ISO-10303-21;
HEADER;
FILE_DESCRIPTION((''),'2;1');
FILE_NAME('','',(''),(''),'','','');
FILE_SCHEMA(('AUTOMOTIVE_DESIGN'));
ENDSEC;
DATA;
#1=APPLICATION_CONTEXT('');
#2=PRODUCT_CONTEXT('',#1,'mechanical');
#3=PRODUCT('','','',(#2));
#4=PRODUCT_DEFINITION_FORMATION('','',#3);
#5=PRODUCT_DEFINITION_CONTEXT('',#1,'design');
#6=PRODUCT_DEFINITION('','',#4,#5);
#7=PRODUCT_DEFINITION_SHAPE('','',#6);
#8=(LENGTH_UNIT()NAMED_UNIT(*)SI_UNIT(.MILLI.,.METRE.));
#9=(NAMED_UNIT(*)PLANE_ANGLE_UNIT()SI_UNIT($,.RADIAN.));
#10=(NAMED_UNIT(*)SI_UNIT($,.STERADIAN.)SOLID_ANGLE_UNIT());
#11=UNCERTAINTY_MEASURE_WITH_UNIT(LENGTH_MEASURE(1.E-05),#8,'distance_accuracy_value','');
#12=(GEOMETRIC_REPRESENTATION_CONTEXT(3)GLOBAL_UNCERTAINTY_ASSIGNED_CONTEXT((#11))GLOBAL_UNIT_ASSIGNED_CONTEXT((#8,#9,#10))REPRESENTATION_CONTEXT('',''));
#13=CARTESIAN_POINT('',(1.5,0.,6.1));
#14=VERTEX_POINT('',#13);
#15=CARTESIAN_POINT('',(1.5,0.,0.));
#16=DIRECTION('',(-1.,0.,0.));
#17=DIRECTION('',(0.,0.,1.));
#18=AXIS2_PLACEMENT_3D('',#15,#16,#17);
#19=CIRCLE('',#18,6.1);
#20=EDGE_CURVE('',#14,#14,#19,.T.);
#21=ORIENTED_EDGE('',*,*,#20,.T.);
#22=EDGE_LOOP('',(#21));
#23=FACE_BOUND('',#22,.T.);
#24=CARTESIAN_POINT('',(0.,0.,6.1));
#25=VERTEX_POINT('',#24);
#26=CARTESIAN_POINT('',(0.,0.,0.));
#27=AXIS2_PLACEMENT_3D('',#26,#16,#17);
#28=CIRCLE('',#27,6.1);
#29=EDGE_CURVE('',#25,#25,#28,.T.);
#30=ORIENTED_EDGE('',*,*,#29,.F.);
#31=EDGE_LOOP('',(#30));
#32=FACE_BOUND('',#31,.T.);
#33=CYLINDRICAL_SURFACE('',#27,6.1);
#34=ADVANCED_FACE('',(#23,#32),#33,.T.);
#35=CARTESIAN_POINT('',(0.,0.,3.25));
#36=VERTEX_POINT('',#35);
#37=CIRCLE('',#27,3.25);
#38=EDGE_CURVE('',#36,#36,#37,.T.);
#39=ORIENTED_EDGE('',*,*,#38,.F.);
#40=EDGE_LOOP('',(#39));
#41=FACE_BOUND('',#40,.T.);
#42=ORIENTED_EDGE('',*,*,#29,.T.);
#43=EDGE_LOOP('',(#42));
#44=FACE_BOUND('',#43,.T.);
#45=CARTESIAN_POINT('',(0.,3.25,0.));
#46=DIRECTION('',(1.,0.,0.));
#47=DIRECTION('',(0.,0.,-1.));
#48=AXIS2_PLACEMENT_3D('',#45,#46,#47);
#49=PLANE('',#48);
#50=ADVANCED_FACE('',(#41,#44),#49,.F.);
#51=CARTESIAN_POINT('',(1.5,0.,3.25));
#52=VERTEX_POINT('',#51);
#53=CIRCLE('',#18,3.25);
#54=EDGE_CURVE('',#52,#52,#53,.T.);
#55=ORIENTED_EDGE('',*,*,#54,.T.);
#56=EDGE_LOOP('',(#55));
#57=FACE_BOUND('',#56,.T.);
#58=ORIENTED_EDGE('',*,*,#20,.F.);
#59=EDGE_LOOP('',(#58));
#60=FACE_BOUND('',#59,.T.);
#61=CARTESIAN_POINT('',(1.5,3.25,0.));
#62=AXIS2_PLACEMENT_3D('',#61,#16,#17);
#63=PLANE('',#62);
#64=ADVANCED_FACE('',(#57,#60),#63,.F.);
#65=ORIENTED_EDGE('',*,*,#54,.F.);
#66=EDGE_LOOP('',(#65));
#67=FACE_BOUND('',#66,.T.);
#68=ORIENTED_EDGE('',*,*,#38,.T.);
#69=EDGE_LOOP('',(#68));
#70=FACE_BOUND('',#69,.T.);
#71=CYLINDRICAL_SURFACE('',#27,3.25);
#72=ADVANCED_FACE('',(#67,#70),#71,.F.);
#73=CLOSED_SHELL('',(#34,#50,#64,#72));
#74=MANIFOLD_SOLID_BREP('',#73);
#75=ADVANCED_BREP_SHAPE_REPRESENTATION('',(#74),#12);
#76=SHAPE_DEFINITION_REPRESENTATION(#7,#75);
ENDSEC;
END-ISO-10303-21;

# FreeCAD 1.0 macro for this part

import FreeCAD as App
import Part
import Sketcher

V = App.Vector
Q = App.Units.Quantity

doc = App.newDocument("Part")
body = doc.addObject("PartDesign::Body", "Body")

# Sketch on XY plane
sketch1 = body.newObject("Sketcher::SketchObject", "Sketch")
sketch1.AttachmentSupport = (doc.getObject("XY_Plane"), [""])
sketch1.MapMode = "FlatFace"
sketch1.addGeometry(Part.LineSegment(V(0, 6.1, 0), V(0, 3.25, 0)), False)
sketch1.addGeometry(Part.LineSegment(V(0, 3.25, 0), V(1.5, 3.25, 0)), False)
sketch1.addGeometry(Part.LineSegment(V(1.5, 3.25, 0), V(1.5, 6.1, 0)), False)
sketch1.addGeometry(Part.LineSegment(V(1.5, 6.1, 0), V(0, 6.1, 0)), False)
sketch1.addConstraint(Sketcher.Constraint("Coincident", 0, 2, 1, 1))
sketch1.addConstraint(Sketcher.Constraint("Coincident", 1, 2, 2, 1))
sketch1.addConstraint(Sketcher.Constraint("Coincident", 2, 2, 3, 1))
sketch1.addConstraint(Sketcher.Constraint("Coincident", 3, 2, 0, 1))
sketch1.addConstraint(Sketcher.Constraint("Vertical", 0))
sketch1.addConstraint(Sketcher.Constraint("Horizontal", 1))
sketch1.addConstraint(Sketcher.Constraint("Vertical", 2))
sketch1.addConstraint(Sketcher.Constraint("Horizontal", 3))
sketch1.addConstraint(Sketcher.Constraint("PointOnObject", 0, 2, -2))
sketch1.addConstraint(Sketcher.Constraint("DistanceX", 1, 1, 1, 2, Q("1.5 mm")))
sketch1.addConstraint(Sketcher.Constraint("DistanceY", 0, 2, 0, 1, Q("2.85 mm")))
sketch1.addConstraint(Sketcher.Constraint("DistanceY", -1, 1, 2, 2, Q("6.1 mm")))
revolution = body.newObject("PartDesign::Revolution", "Revolution")
revolution.Profile = sketch1
revolution.ReferenceAxis = (sketch1, ["H_Axis"])
revolution.Angle = 360

doc.recompute()
